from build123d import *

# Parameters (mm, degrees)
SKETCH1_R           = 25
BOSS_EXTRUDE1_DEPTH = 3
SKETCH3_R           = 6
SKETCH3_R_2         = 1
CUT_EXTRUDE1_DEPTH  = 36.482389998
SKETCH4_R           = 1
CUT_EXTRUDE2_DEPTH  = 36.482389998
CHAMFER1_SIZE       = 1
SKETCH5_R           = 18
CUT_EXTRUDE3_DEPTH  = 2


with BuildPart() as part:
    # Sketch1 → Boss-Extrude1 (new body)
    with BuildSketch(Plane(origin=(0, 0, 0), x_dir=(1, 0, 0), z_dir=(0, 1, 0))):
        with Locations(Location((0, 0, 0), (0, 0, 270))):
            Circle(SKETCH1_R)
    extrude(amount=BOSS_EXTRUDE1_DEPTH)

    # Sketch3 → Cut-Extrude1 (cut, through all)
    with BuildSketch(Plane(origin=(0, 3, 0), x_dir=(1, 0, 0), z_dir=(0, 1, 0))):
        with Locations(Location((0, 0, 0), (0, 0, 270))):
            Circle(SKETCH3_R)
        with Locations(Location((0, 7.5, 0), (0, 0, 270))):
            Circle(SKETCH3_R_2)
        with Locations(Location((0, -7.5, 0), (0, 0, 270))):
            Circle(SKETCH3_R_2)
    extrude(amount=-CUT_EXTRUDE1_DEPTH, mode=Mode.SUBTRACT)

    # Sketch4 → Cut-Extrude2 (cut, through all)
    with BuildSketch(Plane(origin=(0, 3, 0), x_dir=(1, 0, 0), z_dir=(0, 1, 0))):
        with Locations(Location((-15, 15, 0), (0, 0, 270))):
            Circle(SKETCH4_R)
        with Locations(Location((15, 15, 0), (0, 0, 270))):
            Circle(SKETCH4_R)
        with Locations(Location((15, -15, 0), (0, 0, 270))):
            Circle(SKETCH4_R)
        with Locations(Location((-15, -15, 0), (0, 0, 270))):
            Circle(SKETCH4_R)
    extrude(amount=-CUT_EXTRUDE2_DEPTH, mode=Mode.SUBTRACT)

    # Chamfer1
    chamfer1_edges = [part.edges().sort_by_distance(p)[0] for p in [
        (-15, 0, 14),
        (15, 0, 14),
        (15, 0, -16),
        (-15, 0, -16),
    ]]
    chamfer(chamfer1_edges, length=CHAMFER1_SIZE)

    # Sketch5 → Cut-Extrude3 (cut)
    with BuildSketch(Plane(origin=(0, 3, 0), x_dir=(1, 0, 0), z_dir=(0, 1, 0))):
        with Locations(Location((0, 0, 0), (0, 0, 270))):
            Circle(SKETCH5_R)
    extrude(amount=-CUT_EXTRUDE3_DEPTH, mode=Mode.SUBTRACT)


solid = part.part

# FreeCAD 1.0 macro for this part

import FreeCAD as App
import Part
import Sketcher
Q = App.Units.Quantity


def edges_at(feature, points):
    """Names of the edges that pass closest to the given points."""
    edges = feature.Shape.Edges
    near = lambda p: min(range(len(edges)), key=lambda i: edges[i].distToShape(Part.Vertex(*p))[0])
    return sorted({f"Edge{near(p) + 1}" for p in points})

doc = App.newDocument("Part")
body = doc.addObject("PartDesign::Body", "Body")

# Sketch on XZ plane
sketch1 = body.newObject("Sketcher::SketchObject", "Sketch")
sketch1.AttachmentSupport = (doc.getObject("XZ_Plane"), [""])
sketch1.MapMode = "FlatFace"
sketch1.addGeometry(Part.Circle(App.Vector(0, 0, 0), App.Vector(0, 0, 1), 25), False)
sketch1.addConstraint([
    Sketcher.Constraint("Coincident", 0, 3, -1, 1),
    Sketcher.Constraint("Diameter", 0, Q("50 mm")),
])
pad1 = body.newObject("PartDesign::Pad", "Pad")
pad1.Profile = sketch1
pad1.Length = 3
pad1.Reversed = True

# Sketch on XZ plane
sketch2 = body.newObject("Sketcher::SketchObject", "Sketch001")
sketch2.AttachmentSupport = (doc.getObject("XZ_Plane"), [""])
sketch2.MapMode = "FlatFace"
sketch2.AttachmentOffset = App.Placement(App.Vector(0, 0, -3), App.Rotation())
sketch2.addGeometry([
    Part.Circle(App.Vector(0, 0, 0), App.Vector(0, 0, 1), 6),
    Part.Circle(App.Vector(0, -7.5, 0), App.Vector(0, 0, 1), 1),
    Part.Circle(App.Vector(0, 7.5, 0), App.Vector(0, 0, 1), 1),
], False)
sketch2.addConstraint([
    Sketcher.Constraint("Coincident", 0, 3, -1, 1),
    Sketcher.Constraint("Equal", 1, 2),
    Sketcher.Constraint("Symmetric", 1, 3, 2, 3, -1, 1),
    Sketcher.Constraint("PointOnObject", 1, 3, -2),
    Sketcher.Constraint("Diameter", 0, Q("12 mm")),
    Sketcher.Constraint("Diameter", 1, Q("2 mm")),
    Sketcher.Constraint("DistanceY", 1, 3, 2, 3, Q("15 mm")),
])
pocket1 = body.newObject("PartDesign::Pocket", "Pocket")
pocket1.Profile = sketch2
pocket1.Type = "ThroughAll"
pocket1.Reversed = True

# Sketch on XZ plane
sketch3 = body.newObject("Sketcher::SketchObject", "Sketch002")
sketch3.AttachmentSupport = (doc.getObject("XZ_Plane"), [""])
sketch3.MapMode = "FlatFace"
sketch3.AttachmentOffset = App.Placement(App.Vector(0, 0, -3), App.Rotation())
sketch3.addGeometry([
    Part.Circle(App.Vector(-15, -15, 0), App.Vector(0, 0, 1), 1),
    Part.Circle(App.Vector(15, -15, 0), App.Vector(0, 0, 1), 1),
    Part.Circle(App.Vector(15, 15, 0), App.Vector(0, 0, 1), 1),
    Part.Circle(App.Vector(-15, 15, 0), App.Vector(0, 0, 1), 1),
], False)
sketch3.addConstraint([
    Sketcher.Constraint("Equal", 0, 1),
    Sketcher.Constraint("Equal", 1, 2),
    Sketcher.Constraint("Equal", 2, 3),
    Sketcher.Constraint("Symmetric", 0, 3, 2, 3, -1, 1),
    Sketcher.Constraint("Symmetric", 1, 3, 3, 3, -1, 1),
    Sketcher.Constraint("Symmetric", 0, 3, 1, 3, -2),
    Sketcher.Constraint("Diameter", 0, Q("2 mm")),
    Sketcher.Constraint("DistanceX", 0, 3, -1, 1, Q("15 mm")),
    Sketcher.Constraint("DistanceY", 0, 3, -1, 1, Q("15 mm")),
])
pocket2 = body.newObject("PartDesign::Pocket", "Pocket001")
pocket2.Profile = sketch3
pocket2.Type = "ThroughAll"
pocket2.Reversed = True
doc.recompute()

chamfer = body.newObject("PartDesign::Chamfer", "Chamfer")
chamfer.Base = (pocket2, edges_at(pocket2, [
    (-15, 0, 14),
    (15, 0, 14),
    (15, 0, -16),
    (-15, 0, -16),
]))
chamfer.Size = 1

# Sketch on XZ plane
sketch4 = body.newObject("Sketcher::SketchObject", "Sketch003")
sketch4.AttachmentSupport = (doc.getObject("XZ_Plane"), [""])
sketch4.MapMode = "FlatFace"
sketch4.AttachmentOffset = App.Placement(App.Vector(0, 0, -3), App.Rotation())
sketch4.addGeometry(Part.Circle(App.Vector(0, 0, 0), App.Vector(0, 0, 1), 18), False)
sketch4.addConstraint([
    Sketcher.Constraint("Coincident", 0, 3, -1, 1),
    Sketcher.Constraint("Diameter", 0, Q("36 mm")),
])
pocket3 = body.newObject("PartDesign::Pocket", "Pocket002")
pocket3.Profile = sketch4
pocket3.Length = 2
pocket3.Reversed = True

doc.recompute()
